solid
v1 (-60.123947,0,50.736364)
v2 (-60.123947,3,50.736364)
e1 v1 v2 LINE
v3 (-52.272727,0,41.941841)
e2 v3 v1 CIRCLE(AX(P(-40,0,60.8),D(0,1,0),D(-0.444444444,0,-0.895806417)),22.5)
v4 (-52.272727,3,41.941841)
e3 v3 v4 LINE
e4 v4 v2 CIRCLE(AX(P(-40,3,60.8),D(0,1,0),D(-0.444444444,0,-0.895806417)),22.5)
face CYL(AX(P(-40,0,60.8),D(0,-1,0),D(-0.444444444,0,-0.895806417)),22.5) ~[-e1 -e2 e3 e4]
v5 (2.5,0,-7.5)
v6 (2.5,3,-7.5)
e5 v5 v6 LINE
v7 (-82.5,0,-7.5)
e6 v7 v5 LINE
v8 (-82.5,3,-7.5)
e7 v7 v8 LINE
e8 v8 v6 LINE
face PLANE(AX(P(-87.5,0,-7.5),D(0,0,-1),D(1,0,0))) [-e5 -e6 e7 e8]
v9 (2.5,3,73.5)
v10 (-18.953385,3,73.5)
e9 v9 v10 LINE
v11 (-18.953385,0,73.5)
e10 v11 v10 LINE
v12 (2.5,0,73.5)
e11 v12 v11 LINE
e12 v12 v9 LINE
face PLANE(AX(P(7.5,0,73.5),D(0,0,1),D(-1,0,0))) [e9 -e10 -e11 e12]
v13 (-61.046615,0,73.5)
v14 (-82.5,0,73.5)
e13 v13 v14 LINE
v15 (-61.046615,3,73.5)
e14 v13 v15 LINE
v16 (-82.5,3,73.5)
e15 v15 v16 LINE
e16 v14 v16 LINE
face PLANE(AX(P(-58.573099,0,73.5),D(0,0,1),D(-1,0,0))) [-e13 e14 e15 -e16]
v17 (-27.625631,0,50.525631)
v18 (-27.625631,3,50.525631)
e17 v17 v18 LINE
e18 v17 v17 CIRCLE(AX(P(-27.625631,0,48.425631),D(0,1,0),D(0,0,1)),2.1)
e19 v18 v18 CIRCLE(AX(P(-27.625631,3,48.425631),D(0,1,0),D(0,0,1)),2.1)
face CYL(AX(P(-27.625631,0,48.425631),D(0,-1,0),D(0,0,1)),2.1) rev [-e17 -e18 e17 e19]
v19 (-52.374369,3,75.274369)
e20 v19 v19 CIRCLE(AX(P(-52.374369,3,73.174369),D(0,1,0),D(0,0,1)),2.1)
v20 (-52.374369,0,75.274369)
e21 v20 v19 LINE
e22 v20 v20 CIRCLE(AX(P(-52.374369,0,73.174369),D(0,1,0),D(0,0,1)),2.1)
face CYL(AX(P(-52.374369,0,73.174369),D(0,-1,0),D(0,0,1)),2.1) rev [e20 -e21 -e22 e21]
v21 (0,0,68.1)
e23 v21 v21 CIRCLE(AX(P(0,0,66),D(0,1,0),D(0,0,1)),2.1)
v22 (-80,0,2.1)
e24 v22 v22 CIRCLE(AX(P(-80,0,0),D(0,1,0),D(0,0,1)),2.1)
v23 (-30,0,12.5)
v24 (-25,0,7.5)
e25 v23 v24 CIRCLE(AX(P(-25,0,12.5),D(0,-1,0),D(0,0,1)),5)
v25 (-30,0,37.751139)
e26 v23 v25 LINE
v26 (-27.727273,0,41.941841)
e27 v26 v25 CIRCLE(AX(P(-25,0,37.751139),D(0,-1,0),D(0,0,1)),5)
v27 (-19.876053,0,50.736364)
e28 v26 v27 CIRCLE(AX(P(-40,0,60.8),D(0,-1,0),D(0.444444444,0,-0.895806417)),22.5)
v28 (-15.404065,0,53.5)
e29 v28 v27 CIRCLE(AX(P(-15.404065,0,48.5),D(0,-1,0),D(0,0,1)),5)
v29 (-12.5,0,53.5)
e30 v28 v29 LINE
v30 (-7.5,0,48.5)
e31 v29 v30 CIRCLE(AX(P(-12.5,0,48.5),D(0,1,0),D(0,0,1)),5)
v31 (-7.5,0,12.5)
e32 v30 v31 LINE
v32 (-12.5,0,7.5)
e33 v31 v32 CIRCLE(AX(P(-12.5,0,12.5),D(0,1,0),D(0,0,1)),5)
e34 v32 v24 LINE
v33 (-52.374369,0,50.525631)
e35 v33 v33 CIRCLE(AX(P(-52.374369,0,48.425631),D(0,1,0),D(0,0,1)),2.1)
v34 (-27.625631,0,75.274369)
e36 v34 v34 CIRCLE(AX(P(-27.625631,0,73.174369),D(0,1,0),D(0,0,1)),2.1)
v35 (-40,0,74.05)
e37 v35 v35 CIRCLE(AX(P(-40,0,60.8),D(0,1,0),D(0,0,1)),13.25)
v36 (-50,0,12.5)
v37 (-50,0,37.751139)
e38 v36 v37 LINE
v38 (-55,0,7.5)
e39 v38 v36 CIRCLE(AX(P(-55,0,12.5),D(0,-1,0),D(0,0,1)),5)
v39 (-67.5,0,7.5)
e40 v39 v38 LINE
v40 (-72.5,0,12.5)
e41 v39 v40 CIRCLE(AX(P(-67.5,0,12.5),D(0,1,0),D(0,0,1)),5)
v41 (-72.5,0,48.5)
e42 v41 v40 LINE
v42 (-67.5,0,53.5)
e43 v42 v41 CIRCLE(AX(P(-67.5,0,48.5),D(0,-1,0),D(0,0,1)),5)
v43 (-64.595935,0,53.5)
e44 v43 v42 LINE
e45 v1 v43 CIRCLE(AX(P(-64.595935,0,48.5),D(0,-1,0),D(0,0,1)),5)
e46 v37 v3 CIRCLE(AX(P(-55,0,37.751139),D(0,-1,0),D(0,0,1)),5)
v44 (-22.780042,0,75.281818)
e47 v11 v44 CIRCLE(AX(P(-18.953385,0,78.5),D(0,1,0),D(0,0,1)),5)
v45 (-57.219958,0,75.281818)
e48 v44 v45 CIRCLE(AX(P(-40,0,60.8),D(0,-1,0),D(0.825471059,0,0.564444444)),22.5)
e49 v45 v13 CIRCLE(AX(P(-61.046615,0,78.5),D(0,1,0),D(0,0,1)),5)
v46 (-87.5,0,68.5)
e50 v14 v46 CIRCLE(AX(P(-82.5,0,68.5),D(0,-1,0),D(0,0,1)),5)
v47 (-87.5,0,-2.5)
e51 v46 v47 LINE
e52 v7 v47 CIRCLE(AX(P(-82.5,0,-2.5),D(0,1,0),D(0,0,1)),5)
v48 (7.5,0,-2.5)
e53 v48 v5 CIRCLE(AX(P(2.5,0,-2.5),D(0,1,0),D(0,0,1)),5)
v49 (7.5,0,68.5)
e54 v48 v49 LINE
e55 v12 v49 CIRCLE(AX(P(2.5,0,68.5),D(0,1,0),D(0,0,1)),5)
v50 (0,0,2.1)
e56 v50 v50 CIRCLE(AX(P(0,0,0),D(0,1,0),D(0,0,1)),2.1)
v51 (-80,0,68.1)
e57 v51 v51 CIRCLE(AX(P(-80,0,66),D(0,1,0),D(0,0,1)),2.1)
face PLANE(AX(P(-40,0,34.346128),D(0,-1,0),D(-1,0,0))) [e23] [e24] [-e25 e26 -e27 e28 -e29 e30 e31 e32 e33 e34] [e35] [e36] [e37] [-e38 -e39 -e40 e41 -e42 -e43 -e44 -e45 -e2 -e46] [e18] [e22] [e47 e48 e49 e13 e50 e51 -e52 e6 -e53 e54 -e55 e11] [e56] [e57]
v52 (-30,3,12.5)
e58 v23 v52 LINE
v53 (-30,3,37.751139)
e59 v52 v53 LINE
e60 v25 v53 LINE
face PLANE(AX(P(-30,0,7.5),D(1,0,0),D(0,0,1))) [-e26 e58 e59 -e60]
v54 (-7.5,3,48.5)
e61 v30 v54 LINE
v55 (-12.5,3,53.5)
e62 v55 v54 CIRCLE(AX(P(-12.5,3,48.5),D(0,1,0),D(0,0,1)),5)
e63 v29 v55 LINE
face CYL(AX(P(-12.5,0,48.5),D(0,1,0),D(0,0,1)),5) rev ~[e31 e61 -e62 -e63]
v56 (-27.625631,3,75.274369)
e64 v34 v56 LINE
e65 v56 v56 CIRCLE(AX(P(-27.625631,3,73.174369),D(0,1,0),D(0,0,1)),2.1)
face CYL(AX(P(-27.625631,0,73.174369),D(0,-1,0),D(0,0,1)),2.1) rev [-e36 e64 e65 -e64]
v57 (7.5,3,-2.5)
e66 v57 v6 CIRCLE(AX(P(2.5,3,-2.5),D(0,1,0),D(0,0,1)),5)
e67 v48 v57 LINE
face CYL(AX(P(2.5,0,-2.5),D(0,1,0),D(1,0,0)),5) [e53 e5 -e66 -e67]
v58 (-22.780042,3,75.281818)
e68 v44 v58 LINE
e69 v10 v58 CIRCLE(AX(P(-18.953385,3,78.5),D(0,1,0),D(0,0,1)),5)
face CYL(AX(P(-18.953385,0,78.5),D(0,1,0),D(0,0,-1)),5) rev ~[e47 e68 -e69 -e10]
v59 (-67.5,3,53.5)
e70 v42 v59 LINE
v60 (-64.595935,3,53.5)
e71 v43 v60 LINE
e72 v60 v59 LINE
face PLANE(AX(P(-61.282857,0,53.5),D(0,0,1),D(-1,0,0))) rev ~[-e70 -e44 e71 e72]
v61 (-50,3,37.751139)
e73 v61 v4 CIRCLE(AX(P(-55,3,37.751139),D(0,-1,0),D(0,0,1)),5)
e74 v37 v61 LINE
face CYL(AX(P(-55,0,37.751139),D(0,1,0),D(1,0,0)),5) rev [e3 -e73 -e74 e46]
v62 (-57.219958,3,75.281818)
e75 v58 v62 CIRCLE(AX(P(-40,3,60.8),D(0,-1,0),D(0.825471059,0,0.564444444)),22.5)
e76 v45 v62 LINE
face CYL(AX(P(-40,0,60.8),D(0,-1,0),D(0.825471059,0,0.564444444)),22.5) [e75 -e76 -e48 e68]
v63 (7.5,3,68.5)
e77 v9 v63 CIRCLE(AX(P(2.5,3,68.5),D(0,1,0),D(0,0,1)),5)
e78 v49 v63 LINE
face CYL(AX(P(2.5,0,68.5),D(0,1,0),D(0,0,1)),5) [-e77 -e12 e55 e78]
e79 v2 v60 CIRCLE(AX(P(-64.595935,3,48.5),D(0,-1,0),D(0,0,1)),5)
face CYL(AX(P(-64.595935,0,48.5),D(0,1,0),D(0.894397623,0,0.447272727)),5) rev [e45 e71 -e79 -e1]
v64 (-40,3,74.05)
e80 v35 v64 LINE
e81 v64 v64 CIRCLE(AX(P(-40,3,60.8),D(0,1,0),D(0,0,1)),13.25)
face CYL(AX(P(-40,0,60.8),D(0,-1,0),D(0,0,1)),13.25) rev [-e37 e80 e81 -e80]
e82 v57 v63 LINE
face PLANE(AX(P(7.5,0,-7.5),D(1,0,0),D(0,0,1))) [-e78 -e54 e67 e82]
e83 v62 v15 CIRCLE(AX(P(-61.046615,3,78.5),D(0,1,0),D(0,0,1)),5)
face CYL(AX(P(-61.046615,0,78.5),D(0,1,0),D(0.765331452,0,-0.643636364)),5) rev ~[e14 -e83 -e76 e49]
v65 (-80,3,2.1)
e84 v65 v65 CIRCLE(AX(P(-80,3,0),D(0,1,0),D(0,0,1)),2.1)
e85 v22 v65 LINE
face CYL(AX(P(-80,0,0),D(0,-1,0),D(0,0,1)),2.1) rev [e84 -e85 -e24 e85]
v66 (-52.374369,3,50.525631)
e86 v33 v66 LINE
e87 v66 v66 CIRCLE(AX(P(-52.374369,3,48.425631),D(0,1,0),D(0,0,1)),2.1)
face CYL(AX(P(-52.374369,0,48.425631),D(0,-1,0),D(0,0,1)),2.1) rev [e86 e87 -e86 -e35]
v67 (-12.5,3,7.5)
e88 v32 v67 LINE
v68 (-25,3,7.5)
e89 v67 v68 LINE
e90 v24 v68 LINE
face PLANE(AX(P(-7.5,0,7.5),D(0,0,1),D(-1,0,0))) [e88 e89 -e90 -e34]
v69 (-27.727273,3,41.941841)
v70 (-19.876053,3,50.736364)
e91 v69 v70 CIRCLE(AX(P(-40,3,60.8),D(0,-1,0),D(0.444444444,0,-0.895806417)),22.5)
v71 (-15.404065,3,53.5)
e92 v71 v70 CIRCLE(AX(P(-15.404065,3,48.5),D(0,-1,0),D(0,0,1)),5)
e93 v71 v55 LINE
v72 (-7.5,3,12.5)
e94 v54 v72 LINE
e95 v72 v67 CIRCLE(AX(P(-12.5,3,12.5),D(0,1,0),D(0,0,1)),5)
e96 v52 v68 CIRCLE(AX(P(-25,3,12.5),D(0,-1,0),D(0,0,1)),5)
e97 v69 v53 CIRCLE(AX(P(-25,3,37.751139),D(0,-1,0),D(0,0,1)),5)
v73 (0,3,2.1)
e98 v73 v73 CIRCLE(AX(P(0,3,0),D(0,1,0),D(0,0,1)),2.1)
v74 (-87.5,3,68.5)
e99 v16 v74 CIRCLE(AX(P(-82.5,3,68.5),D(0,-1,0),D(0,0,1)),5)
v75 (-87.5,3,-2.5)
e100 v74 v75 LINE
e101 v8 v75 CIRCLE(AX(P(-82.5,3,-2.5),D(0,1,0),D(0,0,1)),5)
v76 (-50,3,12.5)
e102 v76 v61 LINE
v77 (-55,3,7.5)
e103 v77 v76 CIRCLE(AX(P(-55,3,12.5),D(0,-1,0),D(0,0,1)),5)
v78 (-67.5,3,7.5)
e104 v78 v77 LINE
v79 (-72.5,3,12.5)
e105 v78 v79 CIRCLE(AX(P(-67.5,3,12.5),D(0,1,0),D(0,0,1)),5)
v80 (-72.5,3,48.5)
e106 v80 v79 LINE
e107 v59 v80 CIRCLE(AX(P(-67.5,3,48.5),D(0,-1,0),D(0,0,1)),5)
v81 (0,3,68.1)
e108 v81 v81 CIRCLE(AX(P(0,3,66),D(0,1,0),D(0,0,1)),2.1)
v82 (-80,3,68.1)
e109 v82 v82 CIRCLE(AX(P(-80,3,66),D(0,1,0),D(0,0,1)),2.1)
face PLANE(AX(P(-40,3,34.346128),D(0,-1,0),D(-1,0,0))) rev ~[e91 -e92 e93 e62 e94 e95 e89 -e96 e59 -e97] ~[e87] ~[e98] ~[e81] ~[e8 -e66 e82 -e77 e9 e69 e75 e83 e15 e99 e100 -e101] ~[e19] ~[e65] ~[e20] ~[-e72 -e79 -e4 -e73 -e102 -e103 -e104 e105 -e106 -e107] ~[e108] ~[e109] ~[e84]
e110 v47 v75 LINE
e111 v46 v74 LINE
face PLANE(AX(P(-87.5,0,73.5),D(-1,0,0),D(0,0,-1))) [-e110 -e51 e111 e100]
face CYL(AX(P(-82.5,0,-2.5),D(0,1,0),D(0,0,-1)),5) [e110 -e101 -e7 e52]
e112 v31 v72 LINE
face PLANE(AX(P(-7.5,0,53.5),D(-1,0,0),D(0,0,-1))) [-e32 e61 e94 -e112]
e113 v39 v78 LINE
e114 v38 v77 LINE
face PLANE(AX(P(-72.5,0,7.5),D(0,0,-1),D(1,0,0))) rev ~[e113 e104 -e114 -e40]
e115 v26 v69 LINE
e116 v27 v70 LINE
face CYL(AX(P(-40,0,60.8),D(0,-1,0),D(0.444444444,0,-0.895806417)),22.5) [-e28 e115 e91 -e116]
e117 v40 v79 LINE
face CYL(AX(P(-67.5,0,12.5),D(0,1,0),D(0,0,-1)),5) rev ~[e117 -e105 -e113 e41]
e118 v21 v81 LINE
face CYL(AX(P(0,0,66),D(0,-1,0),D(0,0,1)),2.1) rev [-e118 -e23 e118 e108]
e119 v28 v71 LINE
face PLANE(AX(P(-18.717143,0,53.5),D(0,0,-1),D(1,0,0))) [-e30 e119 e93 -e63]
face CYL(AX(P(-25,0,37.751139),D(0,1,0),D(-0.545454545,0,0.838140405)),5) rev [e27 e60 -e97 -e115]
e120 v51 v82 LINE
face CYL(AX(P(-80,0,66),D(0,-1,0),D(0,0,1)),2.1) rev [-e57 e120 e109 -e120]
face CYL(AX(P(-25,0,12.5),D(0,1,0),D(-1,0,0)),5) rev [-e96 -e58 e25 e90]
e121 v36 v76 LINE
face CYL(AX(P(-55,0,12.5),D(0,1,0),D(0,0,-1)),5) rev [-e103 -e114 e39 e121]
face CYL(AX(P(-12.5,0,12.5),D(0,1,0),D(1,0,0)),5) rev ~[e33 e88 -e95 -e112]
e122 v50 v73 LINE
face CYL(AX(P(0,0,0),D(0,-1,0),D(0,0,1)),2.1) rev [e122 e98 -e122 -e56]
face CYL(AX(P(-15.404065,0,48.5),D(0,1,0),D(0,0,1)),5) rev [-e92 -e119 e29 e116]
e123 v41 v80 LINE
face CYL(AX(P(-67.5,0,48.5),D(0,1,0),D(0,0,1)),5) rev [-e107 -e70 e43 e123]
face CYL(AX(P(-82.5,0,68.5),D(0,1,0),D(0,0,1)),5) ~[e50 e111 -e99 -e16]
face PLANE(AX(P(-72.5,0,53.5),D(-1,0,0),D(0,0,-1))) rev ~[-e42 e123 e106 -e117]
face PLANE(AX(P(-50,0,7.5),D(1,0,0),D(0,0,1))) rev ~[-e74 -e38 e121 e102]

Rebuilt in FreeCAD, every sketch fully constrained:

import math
import FreeCAD as App
import Part
import Sketcher

V = App.Vector


def edges_at(feature, points):
    """Names of the edges that pass closest to the given points."""
    edges = feature.Shape.Edges
    near = lambda p: min(range(len(edges)), key=lambda i: edges[i].distToShape(Part.Vertex(*p))[0])
    return sorted({f"Edge{near(p) + 1}" for p in points})

doc = App.newDocument("Part")
body = doc.addObject("PartDesign::Body", "Body")

sketch1 = body.newObject("Sketcher::SketchObject", "Sketch")
sketch1.AttachmentSupport = (doc.getObject("XZ_Plane"), [""])
sketch1.MapMode = "FlatFace"
sketch1.addGeometry([
    Part.LineSegment(V(-21.426901, 73.5, 0), V(7.5, 73.5, 0)),
    Part.LineSegment(V(7.5, 73.5, 0), V(7.5, -7.5, 0)),
    Part.LineSegment(V(7.5, -7.5, 0), V(-87.5, -7.5, 0)),
    Part.LineSegment(V(-87.5, -7.5, 0), V(-87.5, 73.5, 0)),
    Part.LineSegment(V(-87.5, 73.5, 0), V(-58.573099, 73.5, 0)),
    Part.ArcOfCircle(Part.Circle(V(-40, 60.8, 0), V(0, 0, 1), 22.5), math.radians(34.363721), math.radians(145.636279)),
    Part.Circle(V(0, 66, 0), V(0, 0, 1), 2.1),
    Part.Circle(V(-27.625631, 73.174369, 0), V(0, 0, 1), 2.1),
    Part.Circle(V(-27.625631, 48.425631, 0), V(0, 0, 1), 2.1),
    Part.Circle(V(-52.374369, 73.174369, 0), V(0, 0, 1), 2.1),
    Part.Circle(V(-40, 60.8, 0), V(0, 0, 1), 13.25),
    Part.Circle(V(-80, 66, 0), V(0, 0, 1), 2.1),
    Part.Circle(V(-52.374369, 48.425631, 0), V(0, 0, 1), 2.1),
    Part.LineSegment(V(-7.5, 53.5, 0), V(-18.717143, 53.5, 0)),
    Part.ArcOfCircle(Part.Circle(V(-40, 60.8, 0), V(0, 0, 1), 22.5), math.radians(-63.6122), math.radians(-18.93192)),
    Part.LineSegment(V(-30, 40.644356, 0), V(-30, 7.5, 0)),
    Part.LineSegment(V(-30, 7.5, 0), V(-7.5, 7.5, 0)),
    Part.LineSegment(V(-7.5, 7.5, 0), V(-7.5, 53.5, 0)),
    Part.Circle(V(0, 0, 0), V(0, 0, 1), 2.1),
    Part.LineSegment(V(-72.5, 7.5, 0), V(-50, 7.5, 0)),
    Part.LineSegment(V(-50, 7.5, 0), V(-50, 40.644356, 0)),
    Part.ArcOfCircle(Part.Circle(V(-40, 60.8, 0), V(0, 0, 1), 22.5), math.radians(-161.06808), math.radians(-116.3878)),
    Part.LineSegment(V(-61.282857, 53.5, 0), V(-72.5, 53.5, 0)),
    Part.LineSegment(V(-72.5, 53.5, 0), V(-72.5, 7.5, 0)),
    Part.Circle(V(-80, 0, 0), V(0, 0, 1), 2.1),
], False)
sketch1.addConstraint([
    Sketcher.Constraint("Coincident", 0, 2, 1, 1),
    Sketcher.Constraint("Coincident", 1, 2, 2, 1),
    Sketcher.Constraint("Coincident", 2, 2, 3, 1),
    Sketcher.Constraint("Coincident", 3, 2, 4, 1),
    Sketcher.Constraint("Coincident", 4, 2, 5, 2),
    Sketcher.Constraint("Coincident", 5, 1, 0, 1),
    Sketcher.Constraint("Coincident", 13, 2, 14, 2),
    Sketcher.Constraint("Coincident", 14, 1, 15, 1),
    Sketcher.Constraint("Coincident", 15, 2, 16, 1),
    Sketcher.Constraint("Coincident", 16, 2, 17, 1),
    Sketcher.Constraint("Coincident", 17, 2, 13, 1),
    Sketcher.Constraint("Coincident", 19, 2, 20, 1),
    Sketcher.Constraint("Coincident", 20, 2, 21, 2),
    Sketcher.Constraint("Coincident", 21, 1, 22, 1),
    Sketcher.Constraint("Coincident", 22, 2, 23, 1),
    Sketcher.Constraint("Coincident", 23, 2, 19, 1),
    Sketcher.Constraint("Horizontal", 0),
    Sketcher.Constraint("Vertical", 1),
    Sketcher.Constraint("Horizontal", 2),
    Sketcher.Constraint("Vertical", 3),
    Sketcher.Constraint("Horizontal", 4),
    Sketcher.Constraint("Horizontal", 13),
    Sketcher.Constraint("Vertical", 15),
    Sketcher.Constraint("Horizontal", 16),
    Sketcher.Constraint("Vertical", 17),
    Sketcher.Constraint("Horizontal", 19),
    Sketcher.Constraint("Vertical", 20),
    Sketcher.Constraint("Horizontal", 22),
    Sketcher.Constraint("Vertical", 23),
    Sketcher.Constraint("Coincident", 18, 3, -1, 1),
    Sketcher.Constraint("Coincident", 10, 3, 5, 3),
    Sketcher.Constraint("Coincident", 14, 3, 5, 3),
    Sketcher.Constraint("Coincident", 21, 3, 5, 3),
    Sketcher.Constraint("Equal", 6, 7),
    Sketcher.Constraint("Equal", 7, 8),
    Sketcher.Constraint("Equal", 8, 9),
    Sketcher.Constraint("Equal", 9, 11),
    Sketcher.Constraint("Equal", 11, 12),
    Sketcher.Constraint("Equal", 5, 14),
    Sketcher.Constraint("Equal", 12, 18),
    Sketcher.Constraint("Equal", 14, 21),
    Sketcher.Constraint("Equal", 18, 24),
    Sketcher.Constraint("Symmetric", 1, 2, 16, 2, -1, 1),
    Sketcher.Constraint("PointOnObject", 6, 3, -2),
    Sketcher.Constraint("PointOnObject", 24, 3, -1),
    Sketcher.Constraint("Horizontal", 7, 3, 9, 3),
    Sketcher.Constraint("Horizontal", 6, 3, 11, 3),
    Sketcher.Constraint("Horizontal", 8, 3, 12, 3),
    Sketcher.Constraint("Horizontal", 0, 2, 3, 2),
    Sketcher.Constraint("Horizontal", 16, 2, 19, 2),
    Sketcher.Constraint("Horizontal", 14, 1, 20, 2),
    Sketcher.Constraint("Horizontal", 17, 2, 21, 1),
    Sketcher.Constraint("Vertical", 7, 3, 8, 3),
    Sketcher.Constraint("Vertical", 9, 3, 12, 3),
    Sketcher.Constraint("Vertical", 11, 3, 24, 3),
    Sketcher.Constraint("Equal", 0, 4),
    Sketcher.Constraint("Equal", 16, 19),
    Sketcher.Constraint("Diameter", 6, 4.2),
    Sketcher.Constraint("Diameter", 10, 26.5),
    Sketcher.Constraint("Radius", 5, 22.5),
    Sketcher.Constraint("DistanceX", 2, 2, 2, 1, 95.0),
    Sketcher.Constraint("DistanceY", 1, 2, 1, 1, 81.0),
    Sketcher.Constraint("DistanceY", 17, 1, 17, 2, 46.0),
    Sketcher.Constraint("DistanceX", 16, 1, 16, 2, 22.5),
    Sketcher.Constraint("DistanceX", 5, 3, -1, 1, 40.0),
    Sketcher.Constraint("DistanceY", -1, 1, 6, 3, 66.0),
    Sketcher.Constraint("DistanceX", 11, 3, -1, 1, 80.0),
    Sketcher.Constraint("DistanceY", 13, 2, 5, 1, 20.0),
    Sketcher.Constraint("DistanceY", -1, 1, 5, 3, 60.8),
    Sketcher.Constraint("DistanceX", 7, 3, -1, 1, 27.625631),
    Sketcher.Constraint("DistanceY", -1, 1, 7, 3, 73.174369),
    Sketcher.Constraint("DistanceY", -1, 1, 8, 3, 48.425631),
    Sketcher.Constraint("DistanceX", 9, 3, -1, 1, 52.374369),
])
pad1 = body.newObject("PartDesign::Pad", "Pad")
pad1.Profile = sketch1
pad1.Length = 3
pad1.Reversed = True
doc.recompute()

fillet = body.newObject("PartDesign::Fillet", "Fillet")
fillet.Base = (pad1, edges_at(pad1, [
    (-50, 1.5, 7.5),
    (-72.5, 1.5, 7.5),
    (-72.5, 1.5, 53.5),
    (-61.283, 1.5, 53.5),
    (-50, 1.5, 40.644),
    (-7.5, 1.5, 53.5),
    (-7.5, 1.5, 7.5),
    (-30, 1.5, 7.5),
    (-30, 1.5, 40.644),
    (-18.717, 1.5, 53.5),
]))
fillet.Radius = 5
doc.recompute()

fillet2 = body.newObject("PartDesign::Fillet", "Fillet001")
fillet2.Base = (fillet, edges_at(fillet, [
    (-87.5, 1.5, 73.5),
    (-87.5, 1.5, -7.5),
    (7.5, 1.5, -7.5),
    (7.5, 1.5, 73.5),
    (-21.427, 1.5, 73.5),
    (-58.573, 1.5, 73.5),
]))
fillet2.Radius = 5

doc.recompute()
